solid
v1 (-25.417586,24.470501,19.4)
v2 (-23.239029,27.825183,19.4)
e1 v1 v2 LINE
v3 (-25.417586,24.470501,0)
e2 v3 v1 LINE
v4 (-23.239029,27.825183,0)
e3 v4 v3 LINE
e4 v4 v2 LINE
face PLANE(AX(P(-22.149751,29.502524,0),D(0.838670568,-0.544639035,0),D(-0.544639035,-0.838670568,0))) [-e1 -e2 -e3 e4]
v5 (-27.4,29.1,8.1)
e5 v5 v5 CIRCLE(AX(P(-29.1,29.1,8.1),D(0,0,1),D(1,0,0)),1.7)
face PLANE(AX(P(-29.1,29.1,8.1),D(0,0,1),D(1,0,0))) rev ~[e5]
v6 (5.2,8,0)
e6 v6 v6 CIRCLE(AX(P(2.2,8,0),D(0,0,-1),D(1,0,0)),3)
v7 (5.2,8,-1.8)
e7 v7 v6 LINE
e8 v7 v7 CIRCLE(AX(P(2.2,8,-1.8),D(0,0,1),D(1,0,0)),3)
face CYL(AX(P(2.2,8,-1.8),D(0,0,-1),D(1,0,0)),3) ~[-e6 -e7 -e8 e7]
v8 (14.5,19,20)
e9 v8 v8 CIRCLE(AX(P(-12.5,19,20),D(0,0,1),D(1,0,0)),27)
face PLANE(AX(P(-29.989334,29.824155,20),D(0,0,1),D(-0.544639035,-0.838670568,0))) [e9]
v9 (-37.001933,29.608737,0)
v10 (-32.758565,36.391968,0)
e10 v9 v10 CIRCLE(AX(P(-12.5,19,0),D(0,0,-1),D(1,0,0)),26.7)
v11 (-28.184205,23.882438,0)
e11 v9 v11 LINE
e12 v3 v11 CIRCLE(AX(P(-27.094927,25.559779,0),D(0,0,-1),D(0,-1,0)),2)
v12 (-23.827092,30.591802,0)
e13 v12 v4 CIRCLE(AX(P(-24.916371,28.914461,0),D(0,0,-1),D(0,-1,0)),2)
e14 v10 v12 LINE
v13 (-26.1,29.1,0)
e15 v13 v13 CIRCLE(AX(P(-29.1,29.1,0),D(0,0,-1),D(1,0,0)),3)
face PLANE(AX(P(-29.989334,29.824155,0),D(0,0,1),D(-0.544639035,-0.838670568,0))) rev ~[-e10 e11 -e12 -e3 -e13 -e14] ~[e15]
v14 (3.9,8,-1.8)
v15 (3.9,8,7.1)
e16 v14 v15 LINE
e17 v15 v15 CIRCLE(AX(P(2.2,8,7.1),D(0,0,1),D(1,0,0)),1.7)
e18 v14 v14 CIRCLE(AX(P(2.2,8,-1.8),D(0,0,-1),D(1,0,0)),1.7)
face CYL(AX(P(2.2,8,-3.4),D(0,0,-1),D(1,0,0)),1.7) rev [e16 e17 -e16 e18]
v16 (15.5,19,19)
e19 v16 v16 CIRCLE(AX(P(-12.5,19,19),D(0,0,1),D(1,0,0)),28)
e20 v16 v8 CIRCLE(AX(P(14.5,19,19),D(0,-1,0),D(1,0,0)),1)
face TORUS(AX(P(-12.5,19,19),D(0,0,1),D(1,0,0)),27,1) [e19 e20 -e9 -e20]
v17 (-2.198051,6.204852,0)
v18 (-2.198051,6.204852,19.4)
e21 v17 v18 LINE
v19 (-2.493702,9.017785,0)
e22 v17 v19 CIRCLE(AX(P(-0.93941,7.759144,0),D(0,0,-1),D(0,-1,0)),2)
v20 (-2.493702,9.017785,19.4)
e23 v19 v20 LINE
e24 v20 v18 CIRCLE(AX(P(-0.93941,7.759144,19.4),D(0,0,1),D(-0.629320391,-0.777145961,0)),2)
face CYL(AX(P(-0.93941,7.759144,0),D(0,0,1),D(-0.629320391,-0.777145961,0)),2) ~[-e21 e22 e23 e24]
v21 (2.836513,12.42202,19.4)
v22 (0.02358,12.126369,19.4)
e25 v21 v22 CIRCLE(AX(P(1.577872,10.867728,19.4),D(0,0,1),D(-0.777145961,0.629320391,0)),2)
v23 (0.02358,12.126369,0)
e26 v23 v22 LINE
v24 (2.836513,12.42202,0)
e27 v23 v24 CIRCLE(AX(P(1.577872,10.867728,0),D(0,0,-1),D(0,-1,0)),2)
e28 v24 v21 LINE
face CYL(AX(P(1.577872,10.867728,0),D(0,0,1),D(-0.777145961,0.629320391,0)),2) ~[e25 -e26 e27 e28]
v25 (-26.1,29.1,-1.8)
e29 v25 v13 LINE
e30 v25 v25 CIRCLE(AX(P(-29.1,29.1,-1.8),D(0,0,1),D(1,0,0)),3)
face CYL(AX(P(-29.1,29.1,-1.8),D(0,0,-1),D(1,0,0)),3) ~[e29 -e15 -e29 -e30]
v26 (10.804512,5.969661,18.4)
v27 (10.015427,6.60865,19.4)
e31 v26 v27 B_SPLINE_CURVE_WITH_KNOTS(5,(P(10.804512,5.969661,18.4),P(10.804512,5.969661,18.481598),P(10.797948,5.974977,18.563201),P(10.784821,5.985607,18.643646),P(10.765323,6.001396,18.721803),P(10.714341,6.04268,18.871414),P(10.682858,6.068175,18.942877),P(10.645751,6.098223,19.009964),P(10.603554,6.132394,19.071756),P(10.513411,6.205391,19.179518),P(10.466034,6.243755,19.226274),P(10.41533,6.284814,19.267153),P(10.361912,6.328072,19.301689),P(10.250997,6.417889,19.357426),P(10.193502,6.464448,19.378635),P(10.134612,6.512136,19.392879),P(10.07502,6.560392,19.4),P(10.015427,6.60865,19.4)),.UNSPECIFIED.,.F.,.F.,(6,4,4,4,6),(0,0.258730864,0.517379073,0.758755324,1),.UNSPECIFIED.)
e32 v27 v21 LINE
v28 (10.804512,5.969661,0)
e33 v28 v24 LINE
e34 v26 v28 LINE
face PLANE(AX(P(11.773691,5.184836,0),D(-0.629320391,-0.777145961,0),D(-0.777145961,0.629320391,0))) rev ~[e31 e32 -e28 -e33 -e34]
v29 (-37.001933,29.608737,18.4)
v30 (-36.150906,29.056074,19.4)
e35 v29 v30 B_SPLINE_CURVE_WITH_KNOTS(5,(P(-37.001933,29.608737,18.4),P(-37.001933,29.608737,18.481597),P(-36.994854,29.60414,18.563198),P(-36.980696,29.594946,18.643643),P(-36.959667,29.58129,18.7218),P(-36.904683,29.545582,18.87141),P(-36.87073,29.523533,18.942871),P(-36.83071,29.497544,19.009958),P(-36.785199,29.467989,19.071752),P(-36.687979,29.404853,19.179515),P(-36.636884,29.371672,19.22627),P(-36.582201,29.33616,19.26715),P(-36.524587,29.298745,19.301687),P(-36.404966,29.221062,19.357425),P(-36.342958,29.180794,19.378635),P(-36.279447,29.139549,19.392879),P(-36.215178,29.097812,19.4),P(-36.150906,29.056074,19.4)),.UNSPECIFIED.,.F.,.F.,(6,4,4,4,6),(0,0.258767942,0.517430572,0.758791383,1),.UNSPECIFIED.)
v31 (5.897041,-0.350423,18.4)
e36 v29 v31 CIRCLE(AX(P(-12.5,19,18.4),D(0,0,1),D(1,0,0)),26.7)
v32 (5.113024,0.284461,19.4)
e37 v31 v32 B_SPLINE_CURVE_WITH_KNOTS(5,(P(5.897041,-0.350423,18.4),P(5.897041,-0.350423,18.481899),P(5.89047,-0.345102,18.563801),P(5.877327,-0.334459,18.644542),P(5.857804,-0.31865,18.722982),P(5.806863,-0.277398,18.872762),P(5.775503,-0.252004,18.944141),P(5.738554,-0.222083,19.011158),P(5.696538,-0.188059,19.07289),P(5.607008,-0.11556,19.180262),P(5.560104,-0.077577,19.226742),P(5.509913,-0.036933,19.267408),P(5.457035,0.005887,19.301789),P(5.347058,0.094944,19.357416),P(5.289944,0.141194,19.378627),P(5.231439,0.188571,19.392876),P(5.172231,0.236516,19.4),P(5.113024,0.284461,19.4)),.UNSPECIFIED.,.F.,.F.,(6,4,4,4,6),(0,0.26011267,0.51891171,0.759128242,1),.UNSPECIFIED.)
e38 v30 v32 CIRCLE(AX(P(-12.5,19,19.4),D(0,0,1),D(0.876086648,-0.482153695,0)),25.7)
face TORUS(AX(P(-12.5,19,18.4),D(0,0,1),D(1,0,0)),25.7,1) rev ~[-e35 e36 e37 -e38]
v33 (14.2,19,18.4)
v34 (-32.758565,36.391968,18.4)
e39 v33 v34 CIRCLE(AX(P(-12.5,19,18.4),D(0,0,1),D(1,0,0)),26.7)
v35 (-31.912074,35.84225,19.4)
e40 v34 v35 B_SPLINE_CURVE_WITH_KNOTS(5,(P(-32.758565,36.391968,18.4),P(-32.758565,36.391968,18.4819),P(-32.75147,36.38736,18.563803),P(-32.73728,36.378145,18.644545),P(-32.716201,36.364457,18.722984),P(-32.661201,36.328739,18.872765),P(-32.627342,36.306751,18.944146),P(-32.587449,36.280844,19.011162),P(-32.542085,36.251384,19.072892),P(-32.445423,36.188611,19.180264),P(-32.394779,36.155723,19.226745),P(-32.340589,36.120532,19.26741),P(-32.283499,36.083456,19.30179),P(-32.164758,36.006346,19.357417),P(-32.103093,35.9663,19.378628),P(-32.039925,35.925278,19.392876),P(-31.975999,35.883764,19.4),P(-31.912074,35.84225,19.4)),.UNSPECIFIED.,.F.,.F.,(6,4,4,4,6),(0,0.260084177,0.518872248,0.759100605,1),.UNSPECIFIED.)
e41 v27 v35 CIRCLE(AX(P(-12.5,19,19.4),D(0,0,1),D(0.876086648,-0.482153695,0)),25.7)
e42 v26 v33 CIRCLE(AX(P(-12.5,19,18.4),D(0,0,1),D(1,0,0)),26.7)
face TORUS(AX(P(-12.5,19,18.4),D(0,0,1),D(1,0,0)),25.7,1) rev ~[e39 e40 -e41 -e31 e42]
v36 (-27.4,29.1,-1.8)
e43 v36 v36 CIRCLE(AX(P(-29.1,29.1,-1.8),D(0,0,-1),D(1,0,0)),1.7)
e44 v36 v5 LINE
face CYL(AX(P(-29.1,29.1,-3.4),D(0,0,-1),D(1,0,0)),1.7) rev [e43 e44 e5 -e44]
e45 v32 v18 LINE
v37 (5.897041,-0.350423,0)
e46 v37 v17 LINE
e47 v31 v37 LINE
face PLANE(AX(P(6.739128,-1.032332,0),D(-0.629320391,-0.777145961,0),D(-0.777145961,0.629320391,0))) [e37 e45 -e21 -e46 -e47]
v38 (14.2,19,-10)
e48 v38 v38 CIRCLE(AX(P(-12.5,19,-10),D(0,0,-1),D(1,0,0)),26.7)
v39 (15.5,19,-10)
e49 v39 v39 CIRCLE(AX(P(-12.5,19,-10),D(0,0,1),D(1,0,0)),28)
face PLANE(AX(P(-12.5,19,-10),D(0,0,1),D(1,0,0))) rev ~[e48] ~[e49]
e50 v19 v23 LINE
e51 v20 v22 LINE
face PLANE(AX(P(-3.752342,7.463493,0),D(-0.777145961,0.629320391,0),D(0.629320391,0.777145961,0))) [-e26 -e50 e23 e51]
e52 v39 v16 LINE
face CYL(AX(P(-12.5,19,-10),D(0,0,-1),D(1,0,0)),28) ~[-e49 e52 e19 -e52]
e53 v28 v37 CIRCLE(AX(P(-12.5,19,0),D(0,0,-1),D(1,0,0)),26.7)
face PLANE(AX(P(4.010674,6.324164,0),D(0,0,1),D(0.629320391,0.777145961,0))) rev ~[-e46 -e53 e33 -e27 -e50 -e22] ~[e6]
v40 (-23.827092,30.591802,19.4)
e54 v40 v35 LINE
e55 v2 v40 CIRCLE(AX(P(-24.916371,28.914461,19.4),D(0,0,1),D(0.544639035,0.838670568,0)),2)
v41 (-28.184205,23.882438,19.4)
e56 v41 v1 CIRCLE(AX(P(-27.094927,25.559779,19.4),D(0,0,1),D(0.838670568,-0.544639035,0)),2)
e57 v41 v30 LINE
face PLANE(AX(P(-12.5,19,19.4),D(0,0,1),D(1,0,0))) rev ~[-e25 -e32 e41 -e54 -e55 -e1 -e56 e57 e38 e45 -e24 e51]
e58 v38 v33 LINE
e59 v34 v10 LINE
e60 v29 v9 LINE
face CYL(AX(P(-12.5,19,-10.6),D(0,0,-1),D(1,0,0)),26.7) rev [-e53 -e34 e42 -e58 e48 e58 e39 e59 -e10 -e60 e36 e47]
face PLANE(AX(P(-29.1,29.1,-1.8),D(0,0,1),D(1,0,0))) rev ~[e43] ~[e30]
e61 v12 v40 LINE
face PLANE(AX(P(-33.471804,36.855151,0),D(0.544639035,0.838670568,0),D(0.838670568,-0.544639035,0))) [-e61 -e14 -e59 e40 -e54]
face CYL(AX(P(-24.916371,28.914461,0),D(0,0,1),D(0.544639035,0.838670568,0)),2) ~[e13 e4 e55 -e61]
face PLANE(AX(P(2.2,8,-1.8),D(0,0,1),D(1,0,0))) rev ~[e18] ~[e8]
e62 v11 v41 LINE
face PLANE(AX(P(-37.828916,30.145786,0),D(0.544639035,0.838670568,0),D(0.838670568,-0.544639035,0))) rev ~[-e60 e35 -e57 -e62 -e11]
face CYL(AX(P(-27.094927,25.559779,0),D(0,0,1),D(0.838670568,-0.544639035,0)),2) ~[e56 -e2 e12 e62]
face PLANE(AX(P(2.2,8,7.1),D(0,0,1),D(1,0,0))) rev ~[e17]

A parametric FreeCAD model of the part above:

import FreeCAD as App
import Part
import Sketcher
from FreeCAD import Vector


def edges_at(feature, points):
    """Names of the edges that pass closest to the given points."""
    edges = feature.Shape.Edges
    near = lambda p: min(range(len(edges)), key=lambda i: edges[i].distToShape(Part.Vertex(*p))[0])
    return sorted({f"Edge{near(p) + 1}" for p in points})


def add_polygon(sketch, points):
    """Adds a closed chain of lines whose ends are joined by coincident constraints."""
    first, n = sketch.GeometryCount, len(points)
    for a, b in zip(points, points[1:] + points[:1]):
        sketch.addGeometry(Part.LineSegment(App.Vector(*a, 0), App.Vector(*b, 0)), False)
    for i in range(n):
        sketch.addConstraint(Sketcher.Constraint("Coincident", first + i, 2, first + (i + 1) % n, 1))

doc = App.newDocument("Part")
body = doc.addObject("PartDesign::Body", "Body")

sketch1 = doc.addObject("Sketcher::SketchObject", "Sketch")
body.addObject(sketch1)
sketch1.AttachmentSupport = (doc.XY_Plane, [""])
sketch1.MapMode = "FlatFace"
sketch1.AttachmentOffset = App.Placement(Vector(0, 0, -3.4), App.Rotation())
sketch1.addGeometry(Part.Circle(Vector(2.2, 8, 0), Vector(0, 0, 1), 1.7), False)
sketch1.addConstraint([
    Sketcher.Constraint("Diameter", 0, 3.4),
    Sketcher.Constraint("DistanceY", -1, 1, 0, 3, 8.0),
    Sketcher.Constraint("DistanceX", -1, 1, 0, 3, 2.2),
])
pad1 = doc.addObject("PartDesign::Pad", "Pad")
body.addObject(pad1)
pad1.Profile = sketch1
pad1.Length = 10.5
body2 = doc.addObject("PartDesign::Body", "Body001")
body2.AllowCompound = True

sketch2 = doc.addObject("Sketcher::SketchObject", "Sketch001")
body2.addObject(sketch2)
sketch2.AttachmentSupport = (doc.getObject("XY_Plane001"), [""])
sketch2.MapMode = "FlatFace"
sketch2.AttachmentOffset = App.Placement(Vector(0, 0, -3.4), App.Rotation())
sketch2.addGeometry(Part.Circle(Vector(-29.1, 29.1, 0), Vector(0, 0, 1), 1.7), False)
sketch2.addConstraint([
    Sketcher.Constraint("Diameter", 0, 3.4),
    Sketcher.Constraint("DistanceX", 0, 3, -1, 1, 29.1),
    Sketcher.Constraint("DistanceY", -1, 1, 0, 3, 29.1),
])
pad2 = doc.addObject("PartDesign::Pad", "Pad001")
body2.addObject(pad2)
pad2.Profile = sketch2
pad2.Length = 11.5
doc.recompute()

boolean = doc.addObject("PartDesign::Boolean", "Boolean")
body2.addObject(boolean)
boolean.Type = "Fuse"
boolean.addObjects([body])
body3 = doc.addObject("PartDesign::Body", "Body002")

sketch3 = doc.addObject("Sketcher::SketchObject", "Sketch002")
body3.addObject(sketch3)
sketch3.AttachmentSupport = (doc.getObject("XY_Plane002"), [""])
sketch3.MapMode = "FlatFace"
sketch3.AttachmentOffset = App.Placement(Vector(0, 0, -10.6), App.Rotation())
sketch3.addGeometry(Part.Circle(Vector(-12, 19, 0), Vector(0, 0, 1), 27), False)
sketch3.addConstraint([
    Sketcher.Constraint("Diameter", 0, 53.4),
    Sketcher.Constraint("DistanceY", -1, 1, 0, 3, 19.0),
    Sketcher.Constraint("DistanceX", 0, 3, -1, 1, 12.5),
])
pad3 = doc.addObject("PartDesign::Pad", "Pad002")
body3.addObject(pad3)
pad3.Profile = sketch3
pad3.Length = 30
body4 = doc.addObject("PartDesign::Body", "Body003")

sketch4 = doc.addObject("Sketcher::SketchObject", "Sketch003")
body4.addObject(sketch4)
sketch4.AttachmentSupport = (doc.getObject("XY_Plane003"), [""])
sketch4.MapMode = "FlatFace"
sketch4.AttachmentOffset = App.Placement(Vector(0, 0, -10), App.Rotation())
sketch4.addGeometry(Part.Circle(Vector(-12, 19, 0), Vector(0, 0, 1), 28), False)
sketch4.addConstraint([
    Sketcher.Constraint("Diameter", 0, 56.0),
    Sketcher.Constraint("DistanceY", -1, 1, 0, 3, 19.0),
    Sketcher.Constraint("DistanceX", 0, 3, -1, 1, 12.5),
])
pad4 = doc.addObject("PartDesign::Pad", "Pad003")
body4.addObject(pad4)
pad4.Profile = sketch4
pad4.Length = 30
doc.recompute()

boolean2 = doc.addObject("PartDesign::Boolean", "Boolean001")
body4.addObject(boolean2)
boolean2.Type = "Cut"
boolean2.addObjects([body3])
doc.recompute()

fillet = doc.addObject("PartDesign::Fillet", "Fillet")
body4.addObject(fillet)
fillet.Base = (boolean2, edges_at(boolean2, [(-40.5, 19, 20), (-39.2, 19, 19.4)]))
fillet.Radius = 1
body5 = doc.addObject("PartDesign::Body", "Body004")

sketch5 = doc.addObject("Sketcher::SketchObject", "Sketch004")
body5.addObject(sketch5)
sketch5.AttachmentSupport = (doc.getObject("XY_Plane004"), [""])
sketch5.MapMode = "FlatFace"
add_polygon(sketch5, [(0, 14), (0, 0), (8, 0), (8, 14)])
sketch5.addConstraint([
    Sketcher.Constraint("Vertical", 0),
    Sketcher.Constraint("Horizontal", 1),
    Sketcher.Constraint("Vertical", 2),
    Sketcher.Constraint("Horizontal", 3),
    Sketcher.Constraint("Coincident", 0, 2, -1, 1),
    Sketcher.Constraint("DistanceX", 1, 1, 1, 2, 8.0),
    Sketcher.Constraint("DistanceY", 0, 2, 0, 1, 13.5),
])
pad5 = doc.addObject("PartDesign::Pad", "Pad004")
body5.addObject(pad5)
pad5.Profile = sketch5
pad5.Length = 20
body6 = doc.addObject("PartDesign::Body", "Body005")
doc.recompute()

body5.Placement = App.Placement(Vector(-33.471804, 36.855151, 0), App.Rotation(Vector(0, 0, 1), 237))
boolean3 = doc.addObject("PartDesign::Boolean", "Boolean002")
body6.addObject(boolean3)
boolean3.Type = "Fuse"
boolean3.addObjects([body5])
doc.recompute()

fillet2 = doc.addObject("PartDesign::Fillet", "Fillet001")
body6.addObject(fillet2)
fillet2.Base = (boolean3, edges_at(boolean3, [(-35.65, 33.5, 20)]))
fillet2.Radius = 2.5
doc.recompute()

fillet3 = doc.addObject("PartDesign::Fillet", "Fillet002")
body6.addObject(fillet3)
fillet3.Base = (fillet2, edges_at(fillet2, [(-22.15, 29.503, 10), (-26.507, 22.793, 10)]))
fillet3.Radius = 2
body7 = doc.addObject("PartDesign::Body", "Body006")

sketch6 = doc.addObject("Sketcher::SketchObject", "Sketch005")
body7.addObject(sketch6)
sketch6.AttachmentSupport = (doc.getObject("XY_Plane006"), [""])
sketch6.MapMode = "FlatFace"
sketch6.AttachmentOffset = App.Placement(Vector(0, 0, -1.8), App.Rotation())
sketch6.addGeometry(Part.Circle(Vector(-29.1, 29.1, 0), Vector(0, 0, 1), 3), False)
sketch6.addConstraint([
    Sketcher.Constraint("Diameter", 0, 6.0),
    Sketcher.Constraint("DistanceX", 0, 3, -1, 1, 29.1),
    Sketcher.Constraint("DistanceY", -1, 1, 0, 3, 29.1),
])
pad6 = doc.addObject("PartDesign::Pad", "Pad005")
body7.addObject(pad6)
pad6.Profile = sketch6
pad6.Length = 5.5
body8 = doc.addObject("PartDesign::Body", "Body007")

sketch7 = doc.addObject("Sketcher::SketchObject", "Sketch006")
body8.addObject(sketch7)
sketch7.AttachmentSupport = (doc.getObject("XY_Plane007"), [""])
sketch7.MapMode = "FlatFace"
sketch7.AttachmentOffset = App.Placement(Vector(0, 0, -1.8), App.Rotation())
sketch7.addGeometry(Part.Circle(Vector(2.2, 8, 0), Vector(0, 0, 1), 3), False)
sketch7.addConstraint([
    Sketcher.Constraint("Diameter", 0, 6.0),
    Sketcher.Constraint("DistanceY", -1, 1, 0, 3, 8.0),
    Sketcher.Constraint("DistanceX", -1, 1, 0, 3, 2.2),
])
pad7 = doc.addObject("PartDesign::Pad", "Pad006")
body8.addObject(pad7)
pad7.Profile = sketch7
pad7.Length = 5.5
body9 = doc.addObject("PartDesign::Body", "Body008")

sketch8 = doc.addObject("Sketcher::SketchObject", "Sketch007")
body9.addObject(sketch8)
sketch8.AttachmentSupport = (doc.getObject("XY_Plane008"), [""])
sketch8.MapMode = "FlatFace"
add_polygon(sketch8, [(0, 14), (0, 0), (8, 0), (8, 14)])
sketch8.addConstraint([
    Sketcher.Constraint("Vertical", 0),
    Sketcher.Constraint("Horizontal", 1),
    Sketcher.Constraint("Vertical", 2),
    Sketcher.Constraint("Horizontal", 3),
    Sketcher.Constraint("Coincident", 0, 2, -1, 1),
    Sketcher.Constraint("DistanceX", 1, 1, 1, 2, 8.0),
    Sketcher.Constraint("DistanceY", 0, 2, 0, 1, 13.5),
])
pad8 = doc.addObject("PartDesign::Pad", "Pad007")
body9.addObject(pad8)
pad8.Profile = sketch8
pad8.Length = 20
body10 = doc.addObject("PartDesign::Body", "Body009")
doc.recompute()

body9.Placement = App.Placement(Vector(6.739128, -1.032332, 0), App.Rotation(Vector(0, 0, 1), 51))
boolean4 = doc.addObject("PartDesign::Boolean", "Boolean003")
body10.addObject(boolean4)
boolean4.Type = "Fuse"
boolean4.addObjects([body9])
doc.recompute()

fillet4 = doc.addObject("PartDesign::Fillet", "Fillet003")
body10.addObject(fillet4)
fillet4.Base = (boolean4, edges_at(boolean4, [(9.256, 2.076, 20)]))
fillet4.Radius = 2.5
doc.recompute()

fillet5 = doc.addObject("PartDesign::Fillet", "Fillet004")
body10.addObject(fillet5)
fillet5.Base = (fillet4, edges_at(fillet4, [(-3.752, 7.463, 10), (1.282, 13.681, 10)]))
fillet5.Radius = 2
doc.recompute()

boolean5 = doc.addObject("PartDesign::Boolean", "Boolean004")
body10.addObject(boolean5)
boolean5.Type = "Fuse"
boolean5.addObjects([body4])
doc.recompute()

boolean6 = doc.addObject("PartDesign::Boolean", "Boolean005")
body10.addObject(boolean6)
boolean6.Type = "Fuse"
boolean6.addObjects([body6])
doc.recompute()

boolean7 = doc.addObject("PartDesign::Boolean", "Boolean006")
body10.addObject(boolean7)
boolean7.Type = "Fuse"
boolean7.addObjects([body7])
doc.recompute()

boolean8 = doc.addObject("PartDesign::Boolean", "Boolean007")
body10.addObject(boolean8)
boolean8.Type = "Fuse"
boolean8.addObjects([body8])
doc.recompute()

boolean9 = doc.addObject("PartDesign::Boolean", "Boolean008")
body10.addObject(boolean9)
boolean9.Type = "Cut"
boolean9.addObjects([body2])

doc.recompute()
